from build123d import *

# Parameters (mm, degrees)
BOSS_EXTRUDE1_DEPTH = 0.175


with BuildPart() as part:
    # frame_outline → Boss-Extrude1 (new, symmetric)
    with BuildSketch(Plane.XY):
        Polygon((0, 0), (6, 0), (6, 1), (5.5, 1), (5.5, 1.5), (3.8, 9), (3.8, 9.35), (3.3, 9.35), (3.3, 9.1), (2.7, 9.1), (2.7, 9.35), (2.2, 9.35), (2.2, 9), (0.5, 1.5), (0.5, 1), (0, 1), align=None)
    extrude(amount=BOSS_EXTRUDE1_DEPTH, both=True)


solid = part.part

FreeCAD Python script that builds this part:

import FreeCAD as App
import Part
import Sketcher


def add_polygon(sketch, points):
    """Adds a closed chain of lines whose ends are joined by coincident constraints."""
    first, n = sketch.GeometryCount, len(points)
    for a, b in zip(points, points[1:] + points[:1]):
        sketch.addGeometry(Part.LineSegment(App.Vector(*a, 0), App.Vector(*b, 0)), False)
    for i in range(n):
        sketch.addConstraint(Sketcher.Constraint("Coincident", first + i, 2, first + (i + 1) % n, 1))

doc = App.newDocument("Part")
body = doc.addObject("PartDesign::Body", "Body")

# Sketch on XY plane
sketch1 = body.newObject("Sketcher::SketchObject", "Sketch")
sketch1.AttachmentSupport = (doc.getObject("XY_Plane"), [""])
sketch1.MapMode = "FlatFace"
add_polygon(sketch1, [(0, 0), (6, 0), (6, 1), (5.5, 1), (5.5, 1.5), (3.8, 9), (3.8, 9.35), (3.3, 9.35), (3.3, 9.1), (2.7, 9.1), (2.7, 9.35), (2.2, 9.35), (2.2, 9), (0.5, 1.5), (0.5, 1), (0, 1)])  # lines 0-15
sketch1.addConstraint([
    Sketcher.Constraint("Horizontal", 0),
    Sketcher.Constraint("Vertical", 1),
    Sketcher.Constraint("Horizontal", 2),
    Sketcher.Constraint("Vertical", 3),
    Sketcher.Constraint("Vertical", 5),
    Sketcher.Constraint("Horizontal", 6),
    Sketcher.Constraint("Vertical", 7),
    Sketcher.Constraint("Horizontal", 8),
    Sketcher.Constraint("Vertical", 9),
    Sketcher.Constraint("Horizontal", 10),
    Sketcher.Constraint("Vertical", 11),
    Sketcher.Constraint("Vertical", 13),
    Sketcher.Constraint("Horizontal", 14),
    Sketcher.Constraint("Vertical", 15),
    Sketcher.Constraint("Coincident", 15, 2, -1, 1),
    Sketcher.Constraint("Horizontal", 6, 2, 9, 2),
    Sketcher.Constraint("Horizontal", 4, 2, 11, 2),
    Sketcher.Constraint("Horizontal", 3, 2, 12, 2),
    Sketcher.Constraint("Horizontal", 2, 2, 13, 2),
    Sketcher.Constraint("Equal", 2, 6),
    Sketcher.Constraint("Equal", 6, 10),
    Sketcher.Constraint("Equal", 10, 14),
    Sketcher.Constraint("Equal", 14, 3),
    Sketcher.Constraint("Equal", 4, 12),
    Sketcher.Constraint("DistanceX", 0, 1, 0, 2, 6.0),
    Sketcher.Constraint("DistanceY", 1, 1, 1, 2, 1.0),
    Sketcher.Constraint("DistanceX", 2, 2, 2, 1, 0.5),
    Sketcher.Constraint("DistanceX", 8, 2, 8, 1, 0.6),
    Sketcher.Constraint("DistanceY", -1, 1, 4, 2, 9.0),
    Sketcher.Constraint("DistanceY", 5, 1, 5, 2, 0.35),
    Sketcher.Constraint("DistanceY", 7, 2, 7, 1, 0.25),
])
pad1 = body.newObject("PartDesign::Pad", "Pad")
pad1.Profile = sketch1
pad1.Length = 0.35
pad1.Midplane = True

doc.recompute()
